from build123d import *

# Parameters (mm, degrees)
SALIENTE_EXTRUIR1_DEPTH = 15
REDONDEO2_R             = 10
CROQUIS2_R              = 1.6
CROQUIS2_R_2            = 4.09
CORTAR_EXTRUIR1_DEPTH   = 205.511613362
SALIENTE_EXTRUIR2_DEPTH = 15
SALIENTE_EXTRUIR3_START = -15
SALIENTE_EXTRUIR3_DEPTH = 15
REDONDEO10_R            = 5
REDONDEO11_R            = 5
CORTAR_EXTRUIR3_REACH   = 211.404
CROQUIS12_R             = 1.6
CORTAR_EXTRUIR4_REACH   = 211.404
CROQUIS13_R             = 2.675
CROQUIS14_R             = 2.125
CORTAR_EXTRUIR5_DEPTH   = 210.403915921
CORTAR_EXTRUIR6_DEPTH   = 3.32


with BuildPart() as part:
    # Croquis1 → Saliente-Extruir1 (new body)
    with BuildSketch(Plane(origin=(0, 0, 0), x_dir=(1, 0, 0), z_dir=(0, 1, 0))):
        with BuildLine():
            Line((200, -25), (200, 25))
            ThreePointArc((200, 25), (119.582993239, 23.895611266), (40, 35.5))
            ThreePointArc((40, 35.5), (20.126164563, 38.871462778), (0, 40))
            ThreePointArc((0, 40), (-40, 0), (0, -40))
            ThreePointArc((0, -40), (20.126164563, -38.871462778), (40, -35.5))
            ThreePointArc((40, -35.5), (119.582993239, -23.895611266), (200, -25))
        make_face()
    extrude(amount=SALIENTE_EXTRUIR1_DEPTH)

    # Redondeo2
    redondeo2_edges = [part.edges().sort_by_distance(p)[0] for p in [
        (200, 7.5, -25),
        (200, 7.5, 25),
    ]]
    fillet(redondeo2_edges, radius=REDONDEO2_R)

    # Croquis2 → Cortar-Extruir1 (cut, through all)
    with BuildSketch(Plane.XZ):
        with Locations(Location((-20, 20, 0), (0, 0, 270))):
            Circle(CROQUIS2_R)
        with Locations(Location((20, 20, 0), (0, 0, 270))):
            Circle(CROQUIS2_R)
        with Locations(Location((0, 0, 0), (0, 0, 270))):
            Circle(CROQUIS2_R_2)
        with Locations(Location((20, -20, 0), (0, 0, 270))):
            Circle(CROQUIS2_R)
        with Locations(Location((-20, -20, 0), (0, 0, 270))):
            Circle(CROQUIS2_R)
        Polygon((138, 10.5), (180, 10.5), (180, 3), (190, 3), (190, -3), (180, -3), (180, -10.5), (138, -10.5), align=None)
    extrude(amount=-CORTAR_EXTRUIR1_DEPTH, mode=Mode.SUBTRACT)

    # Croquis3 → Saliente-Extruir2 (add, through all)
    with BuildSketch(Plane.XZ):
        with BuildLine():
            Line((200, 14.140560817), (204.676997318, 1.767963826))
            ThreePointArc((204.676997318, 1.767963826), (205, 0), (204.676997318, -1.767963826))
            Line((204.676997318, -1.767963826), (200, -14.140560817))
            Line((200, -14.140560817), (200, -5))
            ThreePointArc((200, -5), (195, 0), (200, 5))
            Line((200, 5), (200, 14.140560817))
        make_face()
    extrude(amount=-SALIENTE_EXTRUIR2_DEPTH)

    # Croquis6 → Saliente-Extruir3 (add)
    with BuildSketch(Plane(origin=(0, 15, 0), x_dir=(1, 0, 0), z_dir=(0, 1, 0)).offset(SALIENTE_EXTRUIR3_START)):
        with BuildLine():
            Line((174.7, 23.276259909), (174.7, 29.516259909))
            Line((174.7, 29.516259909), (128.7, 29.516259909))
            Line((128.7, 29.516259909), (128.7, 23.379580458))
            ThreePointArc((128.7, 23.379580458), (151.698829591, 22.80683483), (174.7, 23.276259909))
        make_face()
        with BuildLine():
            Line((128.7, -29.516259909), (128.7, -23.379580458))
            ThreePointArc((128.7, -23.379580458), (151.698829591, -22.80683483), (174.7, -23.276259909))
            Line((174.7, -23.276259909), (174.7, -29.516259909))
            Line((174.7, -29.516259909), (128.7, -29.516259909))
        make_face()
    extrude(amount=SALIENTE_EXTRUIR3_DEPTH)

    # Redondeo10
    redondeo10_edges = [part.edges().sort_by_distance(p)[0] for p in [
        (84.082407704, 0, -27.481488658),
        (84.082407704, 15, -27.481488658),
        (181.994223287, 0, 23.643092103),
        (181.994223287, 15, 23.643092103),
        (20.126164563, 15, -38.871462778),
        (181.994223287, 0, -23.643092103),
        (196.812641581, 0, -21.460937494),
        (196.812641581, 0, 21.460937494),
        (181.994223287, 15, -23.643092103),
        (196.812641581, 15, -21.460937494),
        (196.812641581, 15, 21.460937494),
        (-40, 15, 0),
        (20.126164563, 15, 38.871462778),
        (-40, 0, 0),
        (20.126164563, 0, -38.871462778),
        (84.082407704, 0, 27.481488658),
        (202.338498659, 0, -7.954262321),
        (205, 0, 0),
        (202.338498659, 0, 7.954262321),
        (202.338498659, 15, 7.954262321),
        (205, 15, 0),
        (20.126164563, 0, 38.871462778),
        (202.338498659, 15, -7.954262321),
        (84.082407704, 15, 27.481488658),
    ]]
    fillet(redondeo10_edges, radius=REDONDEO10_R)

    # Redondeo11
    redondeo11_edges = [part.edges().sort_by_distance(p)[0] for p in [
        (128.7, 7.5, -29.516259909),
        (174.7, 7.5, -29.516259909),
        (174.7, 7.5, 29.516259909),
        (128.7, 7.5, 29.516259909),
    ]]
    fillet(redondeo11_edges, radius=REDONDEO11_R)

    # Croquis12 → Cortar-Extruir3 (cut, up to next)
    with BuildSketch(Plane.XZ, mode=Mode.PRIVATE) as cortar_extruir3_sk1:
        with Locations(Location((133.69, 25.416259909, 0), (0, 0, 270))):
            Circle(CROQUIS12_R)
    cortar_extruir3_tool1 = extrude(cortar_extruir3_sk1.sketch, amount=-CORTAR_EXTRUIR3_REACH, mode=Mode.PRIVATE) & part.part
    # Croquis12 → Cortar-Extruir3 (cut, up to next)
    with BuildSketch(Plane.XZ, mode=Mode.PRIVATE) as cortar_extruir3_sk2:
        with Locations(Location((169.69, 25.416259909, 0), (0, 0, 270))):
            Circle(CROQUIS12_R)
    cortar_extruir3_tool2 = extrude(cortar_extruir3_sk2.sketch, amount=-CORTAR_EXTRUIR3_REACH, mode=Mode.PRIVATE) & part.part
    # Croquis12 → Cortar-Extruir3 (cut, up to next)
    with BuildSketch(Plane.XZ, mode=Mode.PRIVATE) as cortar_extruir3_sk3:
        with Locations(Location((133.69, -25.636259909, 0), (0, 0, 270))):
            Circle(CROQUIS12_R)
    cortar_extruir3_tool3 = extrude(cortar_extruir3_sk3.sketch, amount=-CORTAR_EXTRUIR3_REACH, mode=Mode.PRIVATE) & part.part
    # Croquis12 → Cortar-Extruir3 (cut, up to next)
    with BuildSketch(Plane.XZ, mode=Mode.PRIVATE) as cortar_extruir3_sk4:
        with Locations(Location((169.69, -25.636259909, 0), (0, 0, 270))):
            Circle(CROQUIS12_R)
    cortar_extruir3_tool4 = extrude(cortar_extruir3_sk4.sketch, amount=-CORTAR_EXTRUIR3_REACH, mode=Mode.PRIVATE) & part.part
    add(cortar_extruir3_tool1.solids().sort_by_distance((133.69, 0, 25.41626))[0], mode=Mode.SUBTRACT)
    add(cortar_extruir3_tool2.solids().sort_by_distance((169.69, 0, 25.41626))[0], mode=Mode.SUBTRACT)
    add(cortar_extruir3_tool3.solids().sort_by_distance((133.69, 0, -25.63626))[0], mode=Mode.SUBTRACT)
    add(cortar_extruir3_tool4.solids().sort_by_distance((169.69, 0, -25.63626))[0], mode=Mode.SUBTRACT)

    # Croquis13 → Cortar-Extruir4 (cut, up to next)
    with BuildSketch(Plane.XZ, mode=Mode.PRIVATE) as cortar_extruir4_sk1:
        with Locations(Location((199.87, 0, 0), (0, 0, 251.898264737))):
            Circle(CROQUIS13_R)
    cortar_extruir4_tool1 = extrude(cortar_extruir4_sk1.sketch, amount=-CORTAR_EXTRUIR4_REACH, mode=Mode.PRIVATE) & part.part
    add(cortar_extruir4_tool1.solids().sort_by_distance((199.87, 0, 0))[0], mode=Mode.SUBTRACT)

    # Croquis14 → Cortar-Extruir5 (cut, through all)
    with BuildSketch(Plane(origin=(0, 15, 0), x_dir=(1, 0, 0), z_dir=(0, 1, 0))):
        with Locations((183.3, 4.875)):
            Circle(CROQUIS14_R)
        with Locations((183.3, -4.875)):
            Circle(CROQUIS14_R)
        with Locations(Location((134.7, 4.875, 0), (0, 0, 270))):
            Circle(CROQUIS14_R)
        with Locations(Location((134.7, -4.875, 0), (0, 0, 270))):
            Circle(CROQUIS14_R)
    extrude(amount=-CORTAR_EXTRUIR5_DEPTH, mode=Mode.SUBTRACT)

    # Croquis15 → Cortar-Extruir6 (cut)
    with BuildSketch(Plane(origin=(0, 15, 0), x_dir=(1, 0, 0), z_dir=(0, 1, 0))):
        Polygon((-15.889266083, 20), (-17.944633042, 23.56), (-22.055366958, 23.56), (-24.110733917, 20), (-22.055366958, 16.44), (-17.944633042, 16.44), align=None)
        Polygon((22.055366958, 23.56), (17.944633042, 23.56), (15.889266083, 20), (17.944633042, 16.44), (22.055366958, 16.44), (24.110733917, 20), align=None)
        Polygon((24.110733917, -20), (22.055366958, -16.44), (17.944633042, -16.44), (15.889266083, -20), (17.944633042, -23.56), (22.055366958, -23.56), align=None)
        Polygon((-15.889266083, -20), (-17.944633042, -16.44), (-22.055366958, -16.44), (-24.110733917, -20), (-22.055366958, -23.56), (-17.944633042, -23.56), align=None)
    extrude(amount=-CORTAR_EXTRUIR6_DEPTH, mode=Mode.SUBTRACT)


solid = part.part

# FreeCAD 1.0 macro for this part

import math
import FreeCAD as App
import Part
import Sketcher

V = App.Vector
Q = App.Units.Quantity


def edges_at(feature, points):
    """Names of the edges that pass closest to the given points."""
    edges = feature.Shape.Edges
    near = lambda p: min(range(len(edges)), key=lambda i: edges[i].distToShape(Part.Vertex(*p))[0])
    return sorted({f"Edge{near(p) + 1}" for p in points})


def add_polygon(sketch, points):
    """Adds a closed chain of lines whose ends are joined by coincident constraints."""
    first, n = sketch.GeometryCount, len(points)
    for a, b in zip(points, points[1:] + points[:1]):
        sketch.addGeometry(Part.LineSegment(App.Vector(*a, 0), App.Vector(*b, 0)), False)
    for i in range(n):
        sketch.addConstraint(Sketcher.Constraint("Coincident", first + i, 2, first + (i + 1) % n, 1))

doc = App.newDocument("Part")
body = doc.addObject("PartDesign::Body", "Body")

# Sketch on XZ plane
sketch1 = doc.addObject("Sketcher::SketchObject", "Sketch")
body.addObject(sketch1)
sketch1.AttachmentSupport = (doc.XZ_Plane, [""])
sketch1.MapMode = "FlatFace"
sketch1.addGeometry(Part.LineSegment(V(200, 25, 0), V(200, -25, 0)), False)
sketch1.addGeometry(Part.ArcOfCircle(Part.Circle(V(153, -531, 0), V(0, 0, 1), 508), math.radians(84.67), math.radians(102.84)), False)
sketch1.addGeometry(Part.ArcOfCircle(Part.Circle(V(0, 140, 0), V(0, 0, 1), 180), math.radians(-90), math.radians(-77.16)), False)
sketch1.addGeometry(Part.ArcOfCircle(Part.Circle(V(0, 0, 0), V(0, 0, 1), 40), math.radians(90), math.radians(270)), False)
sketch1.addGeometry(Part.ArcOfCircle(Part.Circle(V(0, -140, 0), V(0, 0, 1), 180), math.radians(77.16), math.radians(90)), False)
sketch1.addGeometry(Part.ArcOfCircle(Part.Circle(V(153, 531, 0), V(0, 0, 1), 508), math.radians(-102.84), math.radians(-84.67)), False)
sketch1.addConstraint(Sketcher.Constraint("Coincident", 0, 2, 1, 1))
sketch1.addConstraint(Sketcher.Constraint("Tangent", 1, 2, 2, 2))
sketch1.addConstraint(Sketcher.Constraint("Tangent", 2, 1, 3, 2))
sketch1.addConstraint(Sketcher.Constraint("Tangent", 3, 1, 4, 2))
sketch1.addConstraint(Sketcher.Constraint("Tangent", 4, 1, 5, 1))
sketch1.addConstraint(Sketcher.Constraint("Coincident", 5, 2, 0, 1))
sketch1.addConstraint(Sketcher.Constraint("Vertical", 0))
sketch1.addConstraint(Sketcher.Constraint("Coincident", 3, 3, -1, 1))
sketch1.addConstraint(Sketcher.Constraint("Equal", 2, 4))
sketch1.addConstraint(Sketcher.Constraint("Equal", 1, 5))
sketch1.addConstraint(Sketcher.Constraint("Symmetric", 1, 3, 5, 3, -1))
sketch1.addConstraint(Sketcher.Constraint("PointOnObject", 2, 3, -2))
sketch1.addConstraint(Sketcher.Constraint("Radius", 3, Q("40 mm")))
sketch1.addConstraint(Sketcher.Constraint("DistanceY", 0, 2, 0, 1, Q("50 mm")))
sketch1.addConstraint(Sketcher.Constraint("DistanceX", -1, 1, 0, 2, Q("200 mm")))
sketch1.addConstraint(Sketcher.Constraint("Radius", 1, Q("507.85621 mm")))
sketch1.addConstraint(Sketcher.Constraint("Radius", 2, Q("180.027778 mm")))
pad1 = doc.addObject("PartDesign::Pad", "Pad")
body.addObject(pad1)
pad1.Profile = sketch1
pad1.Length = 15
pad1.Reversed = True
doc.recompute()

fillet = doc.addObject("PartDesign::Fillet", "Fillet")
body.addObject(fillet)
fillet.Base = (pad1, edges_at(pad1, [(200, 7.5, -25), (200, 7.5, 25)]))
fillet.Radius = 10

# Sketch on XZ plane
sketch2 = doc.addObject("Sketcher::SketchObject", "Sketch001")
body.addObject(sketch2)
sketch2.AttachmentSupport = (doc.XZ_Plane, [""])
sketch2.MapMode = "FlatFace"
sketch2.addGeometry(Part.Circle(V(-20, 20, 0), V(0, 0, 1), 1.6), False)  # 0
sketch2.addGeometry(Part.Circle(V(20, 20, 0), V(0, 0, 1), 1.6), False)  # 1
sketch2.addGeometry(Part.Circle(V(0, 0, 0), V(0, 0, 1), 4.1), False)  # 2
sketch2.addGeometry(Part.Circle(V(20, -20, 0), V(0, 0, 1), 1.6), False)  # 3
sketch2.addGeometry(Part.Circle(V(-20, -20, 0), V(0, 0, 1), 1.6), False)  # 4
add_polygon(sketch2, [(180, 10.5), (138, 10.5), (138, -10.5), (180, -10.5), (180, -3), (190, -3), (190, 3), (180, 3)])  # lines 5-12
sketch2.addConstraint(Sketcher.Constraint("Horizontal", 5))
sketch2.addConstraint(Sketcher.Constraint("Vertical", 6))
sketch2.addConstraint(Sketcher.Constraint("Horizontal", 7))
sketch2.addConstraint(Sketcher.Constraint("Vertical", 8))
sketch2.addConstraint(Sketcher.Constraint("Horizontal", 9))
sketch2.addConstraint(Sketcher.Constraint("Vertical", 10))
sketch2.addConstraint(Sketcher.Constraint("Horizontal", 11))
sketch2.addConstraint(Sketcher.Constraint("Vertical", 12))
sketch2.addConstraint(Sketcher.Constraint("Coincident", 2, 3, -1, 1))
sketch2.addConstraint(Sketcher.Constraint("Equal", 0, 1))
sketch2.addConstraint(Sketcher.Constraint("Equal", 1, 3))
sketch2.addConstraint(Sketcher.Constraint("Equal", 3, 4))
sketch2.addConstraint(Sketcher.Constraint("Symmetric", 0, 3, 3, 3, -1, 1))
sketch2.addConstraint(Sketcher.Constraint("Symmetric", 1, 3, 4, 3, -1, 1))
sketch2.addConstraint(Sketcher.Constraint("Symmetric", 0, 3, 1, 3, -2))
sketch2.addConstraint(Sketcher.Constraint("Symmetric", 8, 2, 11, 2, -1))
sketch2.addConstraint(Sketcher.Constraint("Equal", 8, 12))
sketch2.addConstraint(Sketcher.Constraint("Diameter", 0, Q("3.2 mm")))
sketch2.addConstraint(Sketcher.Constraint("Diameter", 2, Q("8.18 mm")))
sketch2.addConstraint(Sketcher.Constraint("DistanceX", 5, 2, 5, 1, Q("42 mm")))
sketch2.addConstraint(Sketcher.Constraint("DistanceX", 9, 1, 9, 2, Q("10 mm")))
sketch2.addConstraint(Sketcher.Constraint("DistanceY", 6, 2, 6, 1, Q("21 mm")))
sketch2.addConstraint(Sketcher.Constraint("DistanceY", 10, 1, 10, 2, Q("6 mm")))
sketch2.addConstraint(Sketcher.Constraint("DistanceX", 0, 3, -1, 1, Q("20 mm")))
sketch2.addConstraint(Sketcher.Constraint("DistanceY", -1, 1, 0, 3, Q("20 mm")))
sketch2.addConstraint(Sketcher.Constraint("DistanceX", -1, 1, 5, 2, Q("138 mm")))
pocket1 = doc.addObject("PartDesign::Pocket", "Pocket")
body.addObject(pocket1)
pocket1.Profile = sketch2
pocket1.Type = "ThroughAll"

# Sketch on XZ plane
sketch3 = doc.addObject("Sketcher::SketchObject", "Sketch002")
body.addObject(sketch3)
sketch3.AttachmentSupport = (doc.XZ_Plane, [""])
sketch3.MapMode = "FlatFace"
sketch3.addGeometry(Part.LineSegment(V(204.7, 1.8, 0), V(200, 14.1, 0)), False)
sketch3.addGeometry(Part.LineSegment(V(200, 14.1, 0), V(200, 5, 0)), False)
sketch3.addGeometry(Part.ArcOfCircle(Part.Circle(V(200, 0, 0), V(0, 0, 1), 5), math.radians(90), math.radians(270)), False)
sketch3.addGeometry(Part.LineSegment(V(200, -5, 0), V(200, -14.1, 0)), False)
sketch3.addGeometry(Part.LineSegment(V(200, -14.1, 0), V(204.7, -1.8, 0)), False)
sketch3.addGeometry(Part.ArcOfCircle(Part.Circle(V(200, 0, 0), V(0, 0, 1), 5), math.radians(-21), math.radians(21)), False)
sketch3.addConstraint(Sketcher.Constraint("Coincident", 0, 2, 1, 1))
sketch3.addConstraint(Sketcher.Constraint("Coincident", 1, 2, 2, 1))
sketch3.addConstraint(Sketcher.Constraint("Coincident", 2, 2, 3, 1))
sketch3.addConstraint(Sketcher.Constraint("Coincident", 3, 2, 4, 1))
sketch3.addConstraint(Sketcher.Constraint("Tangent", 4, 2, 5, 1))
sketch3.addConstraint(Sketcher.Constraint("Tangent", 5, 2, 0, 1))
sketch3.addConstraint(Sketcher.Constraint("Vertical", 1))
sketch3.addConstraint(Sketcher.Constraint("Vertical", 3))
sketch3.addConstraint(Sketcher.Constraint("Coincident", 5, 3, 2, 3))
sketch3.addConstraint(Sketcher.Constraint("Equal", 2, 5))
sketch3.addConstraint(Sketcher.Constraint("Symmetric", 1, 2, 2, 2, -1))
sketch3.addConstraint(Sketcher.Constraint("Vertical", 5, 3, 0, 2))
sketch3.addConstraint(Sketcher.Constraint("Vertical", 4, 2, 5, 2))
sketch3.addConstraint(Sketcher.Constraint("Radius", 2, Q("5 mm")))
sketch3.addConstraint(Sketcher.Constraint("DistanceX", -1, 1, 2, 3, Q("200 mm")))
sketch3.addConstraint(Sketcher.Constraint("DistanceY", 1, 2, 1, 1, Q("9.140561 mm")))
pad2 = doc.addObject("PartDesign::Pad", "Pad001")
body.addObject(pad2)
pad2.Profile = sketch3
pad2.Length = 15
pad2.Reversed = True

# Sketch on XZ plane
sketch4 = doc.addObject("Sketcher::SketchObject", "Sketch003")
body.addObject(sketch4)
sketch4.AttachmentSupport = (doc.XZ_Plane, [""])
sketch4.MapMode = "FlatFace"
sketch4.addGeometry(Part.LineSegment(V(175, -23, 0), V(175, -30, 0)), False)
sketch4.addGeometry(Part.LineSegment(V(175, -30, 0), V(129, -30, 0)), False)
sketch4.addGeometry(Part.LineSegment(V(129, -30, 0), V(129, -23, 0)), False)
sketch4.addGeometry(Part.ArcOfCircle(Part.Circle(V(153, -531, 0), V(0, 0, 1), 508), math.radians(87.53), math.radians(92.72)), False)
sketch4.addGeometry(Part.LineSegment(V(129, 23, 0), V(129, 30, 0)), False)
sketch4.addGeometry(Part.LineSegment(V(129, 30, 0), V(175, 30, 0)), False)
sketch4.addGeometry(Part.LineSegment(V(175, 30, 0), V(175, 23, 0)), False)
sketch4.addGeometry(Part.ArcOfCircle(Part.Circle(V(153, 531, 0), V(0, 0, 1), 508), math.radians(-92.72), math.radians(-87.53)), False)
sketch4.addConstraint(Sketcher.Constraint("Coincident", 0, 2, 1, 1))
sketch4.addConstraint(Sketcher.Constraint("Coincident", 1, 2, 2, 1))
sketch4.addConstraint(Sketcher.Constraint("Coincident", 2, 2, 3, 2))
sketch4.addConstraint(Sketcher.Constraint("Coincident", 3, 1, 0, 1))
sketch4.addConstraint(Sketcher.Constraint("Coincident", 4, 2, 5, 1))
sketch4.addConstraint(Sketcher.Constraint("Coincident", 5, 2, 6, 1))
sketch4.addConstraint(Sketcher.Constraint("Coincident", 6, 2, 7, 2))
sketch4.addConstraint(Sketcher.Constraint("Coincident", 7, 1, 4, 1))
sketch4.addConstraint(Sketcher.Constraint("Vertical", 0))
sketch4.addConstraint(Sketcher.Constraint("Horizontal", 1))
sketch4.addConstraint(Sketcher.Constraint("Vertical", 2))
sketch4.addConstraint(Sketcher.Constraint("Vertical", 4))
sketch4.addConstraint(Sketcher.Constraint("Horizontal", 5))
sketch4.addConstraint(Sketcher.Constraint("Vertical", 6))
sketch4.addConstraint(Sketcher.Constraint("Equal", 3, 7))
sketch4.addConstraint(Sketcher.Constraint("Symmetric", 3, 3, 7, 3, -1))
sketch4.addConstraint(Sketcher.Constraint("Symmetric", 1, 2, 4, 2, -1))
sketch4.addConstraint(Sketcher.Constraint("Equal", 1, 5))
sketch4.addConstraint(Sketcher.Constraint("DistanceX", 1, 2, 1, 1, Q("46 mm")))
sketch4.addConstraint(Sketcher.Constraint("DistanceY", 0, 2, 0, 1, Q("6.24 mm")))
sketch4.addConstraint(Sketcher.Constraint("DistanceX", -1, 1, 0, 2, Q("174.7 mm")))
sketch4.addConstraint(Sketcher.Constraint("Radius", 3, Q("507.85621 mm")))
sketch4.addConstraint(Sketcher.Constraint("DistanceY", 2, 1, 2, 2, Q("6.136679 mm")))
sketch4.addConstraint(Sketcher.Constraint("DistanceY", 0, 2, -1, 1, Q("29.51626 mm")))
pad3 = doc.addObject("PartDesign::Pad", "Pad002")
body.addObject(pad3)
pad3.Profile = sketch4
pad3.Length = 15
pad3.Reversed = True
doc.recompute()

fillet2 = doc.addObject("PartDesign::Fillet", "Fillet001")
body.addObject(fillet2)
fillet2.Base = (pad3, edges_at(pad3, [
    (84.082, 0, -27.481),
    (84.082, 15, -27.481),
    (181.994, 0, 23.643),
    (181.994, 15, 23.643),
    (20.126, 15, -38.871),
    (181.994, 0, -23.643),
    (196.813, 0, -21.461),
    (196.813, 0, 21.461),
    (181.994, 15, -23.643),
    (196.813, 15, -21.461),
    (196.813, 15, 21.461),
    (-40, 15, 0),
    (20.126, 15, 38.871),
    (-40, 0, 0),
    (20.126, 0, -38.871),
    (84.082, 0, 27.481),
    (202.338, 0, -7.954),
    (205, 0, 0),
    (202.338, 0, 7.954),
    (202.338, 15, 7.954),
    (205, 15, 0),
    (20.126, 0, 38.871),
    (202.338, 15, -7.954),
    (84.082, 15, 27.481),
]))
fillet2.Radius = 5
doc.recompute()

fillet3 = doc.addObject("PartDesign::Fillet", "Fillet002")
body.addObject(fillet3)
fillet3.Base = (fillet2, edges_at(fillet2, [
    (128.7, 7.5, -29.516),
    (174.7, 7.5, -29.516),
    (174.7, 7.5, 29.516),
    (128.7, 7.5, 29.516),
]))
fillet3.Radius = 5

# Sketch on XZ plane
sketch5 = doc.addObject("Sketcher::SketchObject", "Sketch004")
body.addObject(sketch5)
sketch5.AttachmentSupport = (doc.XZ_Plane, [""])
sketch5.MapMode = "FlatFace"
sketch5.addGeometry(Part.Circle(V(133.7, 25.4, 0), V(0, 0, 1), 1.6), False)
sketch5.addConstraint(Sketcher.Constraint("Diameter", 0, Q("3.2 mm")))
sketch5.addConstraint(Sketcher.Constraint("DistanceX", -1, 1, 0, 3, Q("133.69 mm")))
sketch5.addConstraint(Sketcher.Constraint("DistanceY", -1, 1, 0, 3, Q("25.41626 mm")))
pocket2 = doc.addObject("PartDesign::Pocket", "Pocket001")
body.addObject(pocket2)
pocket2.Profile = sketch5
pocket2.Type = "UpToFirst"

# Sketch on XZ plane
sketch6 = doc.addObject("Sketcher::SketchObject", "Sketch005")
body.addObject(sketch6)
sketch6.AttachmentSupport = (doc.XZ_Plane, [""])
sketch6.MapMode = "FlatFace"
sketch6.addGeometry(Part.Circle(V(169.7, 25.4, 0), V(0, 0, 1), 1.6), False)
sketch6.addConstraint(Sketcher.Constraint("Diameter", 0, Q("3.2 mm")))
sketch6.addConstraint(Sketcher.Constraint("DistanceX", -1, 1, 0, 3, Q("169.69 mm")))
sketch6.addConstraint(Sketcher.Constraint("DistanceY", -1, 1, 0, 3, Q("25.41626 mm")))
pocket3 = doc.addObject("PartDesign::Pocket", "Pocket002")
body.addObject(pocket3)
pocket3.Profile = sketch6
pocket3.Type = "UpToFirst"

# Sketch on XZ plane
sketch7 = doc.addObject("Sketcher::SketchObject", "Sketch006")
body.addObject(sketch7)
sketch7.AttachmentSupport = (doc.XZ_Plane, [""])
sketch7.MapMode = "FlatFace"
sketch7.addGeometry(Part.Circle(V(133.7, -25.6, 0), V(0, 0, 1), 1.6), False)
sketch7.addConstraint(Sketcher.Constraint("Diameter", 0, Q("3.2 mm")))
sketch7.addConstraint(Sketcher.Constraint("DistanceX", -1, 1, 0, 3, Q("133.69 mm")))
sketch7.addConstraint(Sketcher.Constraint("DistanceY", 0, 3, -1, 1, Q("25.63626 mm")))
pocket4 = doc.addObject("PartDesign::Pocket", "Pocket003")
body.addObject(pocket4)
pocket4.Profile = sketch7
pocket4.Type = "UpToFirst"

# Sketch on XZ plane
sketch8 = doc.addObject("Sketcher::SketchObject", "Sketch007")
body.addObject(sketch8)
sketch8.AttachmentSupport = (doc.XZ_Plane, [""])
sketch8.MapMode = "FlatFace"
sketch8.addGeometry(Part.Circle(V(169.7, -25.6, 0), V(0, 0, 1), 1.6), False)
sketch8.addConstraint(Sketcher.Constraint("Diameter", 0, Q("3.2 mm")))
sketch8.addConstraint(Sketcher.Constraint("DistanceX", -1, 1, 0, 3, Q("169.69 mm")))
sketch8.addConstraint(Sketcher.Constraint("DistanceY", 0, 3, -1, 1, Q("25.63626 mm")))
pocket5 = doc.addObject("PartDesign::Pocket", "Pocket004")
body.addObject(pocket5)
pocket5.Profile = sketch8
pocket5.Type = "UpToFirst"

# Sketch on XZ plane
sketch9 = doc.addObject("Sketcher::SketchObject", "Sketch008")
body.addObject(sketch9)
sketch9.AttachmentSupport = (doc.XZ_Plane, [""])
sketch9.MapMode = "FlatFace"
sketch9.addGeometry(Part.Circle(V(199.9, 0, 0), V(0, 0, 1), 2.7), False)
sketch9.addConstraint(Sketcher.Constraint("PointOnObject", 0, 3, -1))
sketch9.addConstraint(Sketcher.Constraint("Diameter", 0, Q("5.35 mm")))
sketch9.addConstraint(Sketcher.Constraint("DistanceX", -1, 1, 0, 3, Q("199.87 mm")))
pocket6 = doc.addObject("PartDesign::Pocket", "Pocket005")
body.addObject(pocket6)
pocket6.Profile = sketch9
pocket6.Type = "UpToFirst"

# Sketch on XZ plane
sketch10 = doc.addObject("Sketcher::SketchObject", "Sketch009")
body.addObject(sketch10)
sketch10.AttachmentSupport = (doc.XZ_Plane, [""])
sketch10.MapMode = "FlatFace"
sketch10.AttachmentOffset = App.Placement(V(0, 0, -15), App.Rotation())
sketch10.addGeometry(Part.Circle(V(183.3, -4.9, 0), V(0, 0, 1), 2.1), False)
sketch10.addGeometry(Part.Circle(V(183.3, 4.9, 0), V(0, 0, 1), 2.1), False)
sketch10.addGeometry(Part.Circle(V(134.7, -4.9, 0), V(0, 0, 1), 2.1), False)
sketch10.addGeometry(Part.Circle(V(134.7, 4.9, 0), V(0, 0, 1), 2.1), False)
sketch10.addConstraint(Sketcher.Constraint("Equal", 0, 1))
sketch10.addConstraint(Sketcher.Constraint("Equal", 1, 2))
sketch10.addConstraint(Sketcher.Constraint("Equal", 2, 3))
sketch10.addConstraint(Sketcher.Constraint("Symmetric", 0, 3, 1, 3, -1))
sketch10.addConstraint(Sketcher.Constraint("Symmetric", 2, 3, 3, 3, -1))
sketch10.addConstraint(Sketcher.Constraint("Horizontal", 0, 3, 2, 3))
sketch10.addConstraint(Sketcher.Constraint("Diameter", 0, Q("4.25 mm")))
sketch10.addConstraint(Sketcher.Constraint("DistanceX", -1, 1, 0, 3, Q("183.3 mm")))
sketch10.addConstraint(Sketcher.Constraint("DistanceX", -1, 1, 2, 3, Q("134.7 mm")))
sketch10.addConstraint(Sketcher.Constraint("DistanceY", 0, 3, 1, 3, Q("9.75 mm")))
pocket7 = doc.addObject("PartDesign::Pocket", "Pocket006")
body.addObject(pocket7)
pocket7.Profile = sketch10
pocket7.Type = "ThroughAll"
pocket7.Reversed = True

# Sketch on XZ plane
sketch11 = doc.addObject("Sketcher::SketchObject", "Sketch010")
body.addObject(sketch11)
sketch11.AttachmentSupport = (doc.XZ_Plane, [""])
sketch11.MapMode = "FlatFace"
sketch11.AttachmentOffset = App.Placement(V(0, 0, -15), App.Rotation())
add_polygon(sketch11, [(-15.9, -20), (-17.9, -23.6), (-22.1, -23.6), (-24.1, -20), (-22.1, -16.4), (-17.9, -16.4)])  # lines 0-5
add_polygon(sketch11, [(22.1, -23.6), (17.9, -23.6), (15.9, -20), (17.9, -16.4), (22.1, -16.4), (24.1, -20)])  # lines 6-11
add_polygon(sketch11, [(24.1, 20), (22.1, 16.4), (17.9, 16.4), (15.9, 20), (17.9, 23.6), (22.1, 23.6)])  # lines 12-17
add_polygon(sketch11, [(-15.9, 20), (-17.9, 16.4), (-22.1, 16.4), (-24.1, 20), (-22.1, 23.6), (-17.9, 23.6)])  # lines 18-23
sketch11.addConstraint(Sketcher.Constraint("Horizontal", 1))
sketch11.addConstraint(Sketcher.Constraint("Horizontal", 4))
sketch11.addConstraint(Sketcher.Constraint("Horizontal", 6))
sketch11.addConstraint(Sketcher.Constraint("Horizontal", 9))
sketch11.addConstraint(Sketcher.Constraint("Horizontal", 13))
sketch11.addConstraint(Sketcher.Constraint("Horizontal", 16))
sketch11.addConstraint(Sketcher.Constraint("Horizontal", 19))
sketch11.addConstraint(Sketcher.Constraint("Horizontal", 22))
sketch11.addConstraint(Sketcher.Constraint("Symmetric", 3, 2, 12, 2, -1, 1))
sketch11.addConstraint(Sketcher.Constraint("Symmetric", 5, 2, 14, 2, -1, 1))
sketch11.addConstraint(Sketcher.Constraint("Symmetric", 0, 2, 15, 2, -1, 1))
sketch11.addConstraint(Sketcher.Constraint("Symmetric", 2, 2, 17, 2, -1, 1))
sketch11.addConstraint(Sketcher.Constraint("Symmetric", 8, 2, 18, 2, -1, 1))
sketch11.addConstraint(Sketcher.Constraint("Symmetric", 10, 2, 20, 2, -1, 1))
sketch11.addConstraint(Sketcher.Constraint("Symmetric", 11, 2, 21, 2, -1, 1))
sketch11.addConstraint(Sketcher.Constraint("Symmetric", 7, 2, 23, 2, -1, 1))
sketch11.addConstraint(Sketcher.Constraint("Symmetric", 0, 2, 6, 2, -2))
sketch11.addConstraint(Sketcher.Constraint("Symmetric", 5, 2, 7, 2, -2))
sketch11.addConstraint(Sketcher.Constraint("Symmetric", 4, 2, 8, 2, -2))
sketch11.addConstraint(Sketcher.Constraint("Symmetric", 2, 2, 10, 2, -2))
sketch11.addConstraint(Sketcher.Constraint("Parallel", 0, 3))
sketch11.addConstraint(Sketcher.Constraint("Parallel", 2, 5))
sketch11.addConstraint(Sketcher.Constraint("Parallel", 5, 7))
sketch11.addConstraint(Sketcher.Constraint("Parallel", 7, 10))
sketch11.addConstraint(Sketcher.Constraint("Parallel", 8, 11))
sketch11.addConstraint(Sketcher.Constraint("Parallel", 10, 14))
sketch11.addConstraint(Sketcher.Constraint("Parallel", 14, 17))
sketch11.addConstraint(Sketcher.Constraint("Parallel", 17, 20))
sketch11.addConstraint(Sketcher.Constraint("Parallel", 20, 23))
sketch11.addConstraint(Sketcher.Constraint("Horizontal", 2, 2, 5, 2))
sketch11.addConstraint(Sketcher.Constraint("Vertical", 1, 2, 3, 2))
sketch11.addConstraint(Sketcher.Constraint("Angle", 0, Q("-120 deg")))
sketch11.addConstraint(Sketcher.Constraint("DistanceY", 2, 2, -1, 1, Q("20 mm")))
sketch11.addConstraint(Sketcher.Constraint("DistanceX", 1, 2, 6, 2, Q("40 mm")))
sketch11.addConstraint(Sketcher.Constraint("DistanceY", 0, 2, -1, 1, Q("23.56 mm")))
sketch11.addConstraint(Sketcher.Constraint("DistanceX", 2, 2, 0, 2, Q("6.166101 mm")))
pocket8 = doc.addObject("PartDesign::Pocket", "Pocket007")
body.addObject(pocket8)
pocket8.Profile = sketch11
pocket8.Length = 3.32
pocket8.Reversed = True

doc.recompute()
